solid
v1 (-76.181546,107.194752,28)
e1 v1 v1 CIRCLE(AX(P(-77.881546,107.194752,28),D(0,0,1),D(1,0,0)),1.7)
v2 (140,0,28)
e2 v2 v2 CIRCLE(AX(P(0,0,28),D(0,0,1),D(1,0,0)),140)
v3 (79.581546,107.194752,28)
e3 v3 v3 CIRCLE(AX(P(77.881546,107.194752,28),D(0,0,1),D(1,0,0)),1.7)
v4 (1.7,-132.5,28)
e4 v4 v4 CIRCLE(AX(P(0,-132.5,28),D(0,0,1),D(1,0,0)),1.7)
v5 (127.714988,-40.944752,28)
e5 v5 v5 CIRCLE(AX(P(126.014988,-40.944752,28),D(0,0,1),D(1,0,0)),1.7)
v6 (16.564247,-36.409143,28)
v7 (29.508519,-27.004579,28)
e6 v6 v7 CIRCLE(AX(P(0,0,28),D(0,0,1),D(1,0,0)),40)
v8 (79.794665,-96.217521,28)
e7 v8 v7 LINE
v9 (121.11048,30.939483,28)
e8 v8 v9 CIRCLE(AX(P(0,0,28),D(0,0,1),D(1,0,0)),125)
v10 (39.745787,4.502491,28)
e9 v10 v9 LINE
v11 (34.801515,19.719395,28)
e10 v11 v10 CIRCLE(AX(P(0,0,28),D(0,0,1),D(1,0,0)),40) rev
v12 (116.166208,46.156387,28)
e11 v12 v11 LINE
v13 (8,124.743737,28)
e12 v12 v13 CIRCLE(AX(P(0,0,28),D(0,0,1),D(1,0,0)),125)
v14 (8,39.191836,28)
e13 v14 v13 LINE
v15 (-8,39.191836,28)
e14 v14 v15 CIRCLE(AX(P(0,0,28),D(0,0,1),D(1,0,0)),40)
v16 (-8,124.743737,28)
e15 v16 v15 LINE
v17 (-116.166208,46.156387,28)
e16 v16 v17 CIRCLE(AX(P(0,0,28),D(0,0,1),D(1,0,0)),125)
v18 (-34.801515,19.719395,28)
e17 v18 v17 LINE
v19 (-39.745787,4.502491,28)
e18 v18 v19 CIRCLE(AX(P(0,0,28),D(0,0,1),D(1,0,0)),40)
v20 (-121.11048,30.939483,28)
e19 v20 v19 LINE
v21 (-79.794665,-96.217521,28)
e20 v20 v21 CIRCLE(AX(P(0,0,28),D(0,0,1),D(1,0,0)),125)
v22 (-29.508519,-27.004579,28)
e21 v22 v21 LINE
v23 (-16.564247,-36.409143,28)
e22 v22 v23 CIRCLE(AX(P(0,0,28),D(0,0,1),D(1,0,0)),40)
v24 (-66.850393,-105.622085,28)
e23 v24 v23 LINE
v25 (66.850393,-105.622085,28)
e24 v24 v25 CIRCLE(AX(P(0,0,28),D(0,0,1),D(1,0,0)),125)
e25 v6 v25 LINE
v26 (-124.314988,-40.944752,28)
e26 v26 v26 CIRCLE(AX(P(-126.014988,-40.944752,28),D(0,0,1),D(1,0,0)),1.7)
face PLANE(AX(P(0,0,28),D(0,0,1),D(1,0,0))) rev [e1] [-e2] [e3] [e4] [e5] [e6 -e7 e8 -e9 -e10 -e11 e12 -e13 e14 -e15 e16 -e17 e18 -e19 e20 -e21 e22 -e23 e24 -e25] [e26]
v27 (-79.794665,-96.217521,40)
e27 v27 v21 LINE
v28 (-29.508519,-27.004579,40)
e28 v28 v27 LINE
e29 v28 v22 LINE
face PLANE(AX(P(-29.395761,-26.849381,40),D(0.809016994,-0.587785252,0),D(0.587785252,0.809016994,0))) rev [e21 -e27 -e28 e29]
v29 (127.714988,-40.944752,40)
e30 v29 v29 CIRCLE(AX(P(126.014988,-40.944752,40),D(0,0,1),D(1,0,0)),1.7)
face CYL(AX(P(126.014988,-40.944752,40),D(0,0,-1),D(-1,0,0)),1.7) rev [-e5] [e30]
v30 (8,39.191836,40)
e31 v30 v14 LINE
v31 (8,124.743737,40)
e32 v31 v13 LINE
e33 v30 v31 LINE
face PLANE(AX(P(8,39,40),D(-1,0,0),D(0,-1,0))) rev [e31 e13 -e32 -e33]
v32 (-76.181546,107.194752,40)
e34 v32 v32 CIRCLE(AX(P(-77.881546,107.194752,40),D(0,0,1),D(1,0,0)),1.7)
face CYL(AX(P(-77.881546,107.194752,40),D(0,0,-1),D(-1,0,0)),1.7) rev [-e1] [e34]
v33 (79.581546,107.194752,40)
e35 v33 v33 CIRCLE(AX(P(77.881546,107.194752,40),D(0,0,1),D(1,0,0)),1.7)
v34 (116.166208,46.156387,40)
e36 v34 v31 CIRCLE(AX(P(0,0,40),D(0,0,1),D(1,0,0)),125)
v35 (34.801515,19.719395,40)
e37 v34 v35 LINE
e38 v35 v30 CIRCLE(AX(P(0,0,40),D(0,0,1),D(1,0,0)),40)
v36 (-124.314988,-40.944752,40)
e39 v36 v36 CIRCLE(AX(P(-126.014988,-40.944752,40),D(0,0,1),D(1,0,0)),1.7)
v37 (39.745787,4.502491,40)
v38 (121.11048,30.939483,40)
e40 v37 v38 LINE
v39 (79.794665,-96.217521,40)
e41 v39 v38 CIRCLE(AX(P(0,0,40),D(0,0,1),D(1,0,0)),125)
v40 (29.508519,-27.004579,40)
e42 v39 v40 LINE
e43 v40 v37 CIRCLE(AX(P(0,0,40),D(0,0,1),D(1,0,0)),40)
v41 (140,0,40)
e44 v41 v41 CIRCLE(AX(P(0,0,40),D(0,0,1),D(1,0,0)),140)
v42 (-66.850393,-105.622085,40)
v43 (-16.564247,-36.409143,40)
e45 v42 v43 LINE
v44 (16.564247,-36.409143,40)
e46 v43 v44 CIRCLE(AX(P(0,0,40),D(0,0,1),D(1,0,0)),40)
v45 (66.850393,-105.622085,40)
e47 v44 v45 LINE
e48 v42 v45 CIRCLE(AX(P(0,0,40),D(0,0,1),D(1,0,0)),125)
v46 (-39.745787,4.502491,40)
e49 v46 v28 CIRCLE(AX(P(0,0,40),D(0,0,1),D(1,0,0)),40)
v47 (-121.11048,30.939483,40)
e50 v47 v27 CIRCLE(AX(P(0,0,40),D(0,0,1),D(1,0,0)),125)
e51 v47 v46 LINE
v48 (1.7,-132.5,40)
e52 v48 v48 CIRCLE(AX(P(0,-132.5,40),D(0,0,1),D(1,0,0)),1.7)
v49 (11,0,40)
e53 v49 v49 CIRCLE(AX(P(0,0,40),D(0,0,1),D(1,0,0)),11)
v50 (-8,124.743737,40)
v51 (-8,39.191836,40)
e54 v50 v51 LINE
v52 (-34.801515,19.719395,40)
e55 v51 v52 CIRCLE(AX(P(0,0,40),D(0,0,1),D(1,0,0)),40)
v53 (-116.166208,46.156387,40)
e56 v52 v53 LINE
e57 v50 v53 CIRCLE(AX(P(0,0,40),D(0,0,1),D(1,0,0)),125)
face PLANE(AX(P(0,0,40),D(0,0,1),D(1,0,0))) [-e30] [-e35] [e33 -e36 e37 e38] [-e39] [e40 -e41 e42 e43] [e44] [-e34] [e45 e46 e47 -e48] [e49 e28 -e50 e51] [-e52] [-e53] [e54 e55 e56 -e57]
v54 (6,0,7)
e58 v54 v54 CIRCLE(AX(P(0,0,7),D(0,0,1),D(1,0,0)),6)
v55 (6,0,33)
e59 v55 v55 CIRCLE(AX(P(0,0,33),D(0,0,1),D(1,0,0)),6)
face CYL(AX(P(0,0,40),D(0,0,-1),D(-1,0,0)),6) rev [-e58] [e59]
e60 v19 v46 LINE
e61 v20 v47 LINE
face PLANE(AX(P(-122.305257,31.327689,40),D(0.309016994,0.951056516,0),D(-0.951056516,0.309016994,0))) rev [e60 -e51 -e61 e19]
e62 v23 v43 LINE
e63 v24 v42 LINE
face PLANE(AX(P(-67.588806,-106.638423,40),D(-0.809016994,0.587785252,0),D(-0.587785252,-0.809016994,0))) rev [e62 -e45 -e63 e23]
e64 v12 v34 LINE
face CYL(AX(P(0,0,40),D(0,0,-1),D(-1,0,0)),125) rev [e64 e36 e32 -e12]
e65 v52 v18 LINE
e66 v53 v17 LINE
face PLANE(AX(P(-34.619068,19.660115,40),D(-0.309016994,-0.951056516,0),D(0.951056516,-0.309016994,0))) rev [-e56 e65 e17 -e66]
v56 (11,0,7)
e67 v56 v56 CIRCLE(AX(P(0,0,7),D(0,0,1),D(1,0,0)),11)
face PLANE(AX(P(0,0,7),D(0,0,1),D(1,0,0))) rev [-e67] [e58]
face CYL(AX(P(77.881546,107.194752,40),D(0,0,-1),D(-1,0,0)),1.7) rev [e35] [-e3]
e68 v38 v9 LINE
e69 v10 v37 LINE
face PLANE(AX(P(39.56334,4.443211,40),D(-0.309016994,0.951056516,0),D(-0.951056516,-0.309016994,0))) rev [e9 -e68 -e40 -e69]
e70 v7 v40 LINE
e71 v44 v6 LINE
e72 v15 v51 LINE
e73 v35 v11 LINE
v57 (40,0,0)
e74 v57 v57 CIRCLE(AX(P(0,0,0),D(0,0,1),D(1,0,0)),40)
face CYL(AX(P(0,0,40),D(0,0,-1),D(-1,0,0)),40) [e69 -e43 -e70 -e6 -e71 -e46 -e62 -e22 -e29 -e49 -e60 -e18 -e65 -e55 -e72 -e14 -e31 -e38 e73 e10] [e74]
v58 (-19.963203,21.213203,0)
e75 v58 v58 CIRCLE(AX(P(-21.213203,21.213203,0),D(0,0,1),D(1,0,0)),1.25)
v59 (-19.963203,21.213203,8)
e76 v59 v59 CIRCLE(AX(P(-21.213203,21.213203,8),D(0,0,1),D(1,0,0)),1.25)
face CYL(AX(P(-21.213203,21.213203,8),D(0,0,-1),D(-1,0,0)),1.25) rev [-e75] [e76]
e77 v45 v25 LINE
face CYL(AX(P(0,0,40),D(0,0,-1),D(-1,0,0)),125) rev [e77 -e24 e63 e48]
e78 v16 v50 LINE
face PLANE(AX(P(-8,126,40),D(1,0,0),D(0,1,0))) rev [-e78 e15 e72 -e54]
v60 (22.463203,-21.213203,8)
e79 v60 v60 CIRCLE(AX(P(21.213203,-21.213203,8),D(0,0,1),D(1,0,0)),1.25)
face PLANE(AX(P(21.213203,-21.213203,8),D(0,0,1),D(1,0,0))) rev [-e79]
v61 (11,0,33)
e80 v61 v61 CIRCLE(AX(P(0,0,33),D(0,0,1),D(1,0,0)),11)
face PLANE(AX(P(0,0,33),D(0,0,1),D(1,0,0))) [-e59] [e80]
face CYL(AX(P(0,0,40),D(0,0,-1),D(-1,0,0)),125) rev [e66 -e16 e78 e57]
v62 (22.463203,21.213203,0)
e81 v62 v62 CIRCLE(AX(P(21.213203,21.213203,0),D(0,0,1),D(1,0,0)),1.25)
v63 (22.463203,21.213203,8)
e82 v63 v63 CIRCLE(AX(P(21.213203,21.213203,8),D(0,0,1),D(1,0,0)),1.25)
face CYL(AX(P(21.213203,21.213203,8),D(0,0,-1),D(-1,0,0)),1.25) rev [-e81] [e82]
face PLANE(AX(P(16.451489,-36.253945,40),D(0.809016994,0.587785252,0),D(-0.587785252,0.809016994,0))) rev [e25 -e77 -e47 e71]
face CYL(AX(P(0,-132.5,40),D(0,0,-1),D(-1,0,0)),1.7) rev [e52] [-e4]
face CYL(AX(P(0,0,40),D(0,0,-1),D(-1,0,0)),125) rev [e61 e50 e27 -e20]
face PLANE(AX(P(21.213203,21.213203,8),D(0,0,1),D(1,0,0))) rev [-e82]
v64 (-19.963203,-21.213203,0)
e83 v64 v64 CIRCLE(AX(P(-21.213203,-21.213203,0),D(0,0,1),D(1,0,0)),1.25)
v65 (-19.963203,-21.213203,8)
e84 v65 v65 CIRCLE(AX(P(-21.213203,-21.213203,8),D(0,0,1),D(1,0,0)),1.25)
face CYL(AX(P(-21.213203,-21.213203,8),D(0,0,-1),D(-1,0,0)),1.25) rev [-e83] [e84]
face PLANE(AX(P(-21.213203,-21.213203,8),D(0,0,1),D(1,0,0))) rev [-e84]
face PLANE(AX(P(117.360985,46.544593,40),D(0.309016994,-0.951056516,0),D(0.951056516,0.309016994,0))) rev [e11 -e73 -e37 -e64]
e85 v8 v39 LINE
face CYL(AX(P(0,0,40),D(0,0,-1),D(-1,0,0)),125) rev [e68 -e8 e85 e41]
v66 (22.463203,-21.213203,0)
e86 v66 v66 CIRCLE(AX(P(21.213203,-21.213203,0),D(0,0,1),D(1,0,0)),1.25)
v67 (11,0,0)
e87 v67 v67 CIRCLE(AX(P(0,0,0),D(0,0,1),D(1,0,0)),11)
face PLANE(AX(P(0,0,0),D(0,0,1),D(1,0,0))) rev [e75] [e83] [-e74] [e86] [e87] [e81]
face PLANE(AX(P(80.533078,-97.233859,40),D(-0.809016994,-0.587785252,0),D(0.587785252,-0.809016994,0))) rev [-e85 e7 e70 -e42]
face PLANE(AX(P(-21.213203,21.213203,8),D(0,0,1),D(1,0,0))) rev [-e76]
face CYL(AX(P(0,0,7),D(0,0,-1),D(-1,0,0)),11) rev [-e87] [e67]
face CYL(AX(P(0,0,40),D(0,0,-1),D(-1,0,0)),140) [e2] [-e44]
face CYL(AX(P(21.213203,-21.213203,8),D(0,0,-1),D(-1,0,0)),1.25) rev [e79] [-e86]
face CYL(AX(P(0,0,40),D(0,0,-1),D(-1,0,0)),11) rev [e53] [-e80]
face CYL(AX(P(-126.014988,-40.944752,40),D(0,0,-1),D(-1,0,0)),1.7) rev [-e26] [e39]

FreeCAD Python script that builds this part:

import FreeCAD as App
import Part
import Sketcher
Q = App.Units.Quantity


def add_polygon(sketch, points):
    """Adds a closed chain of lines whose ends are joined by coincident constraints."""
    first, n = sketch.GeometryCount, len(points)
    for a, b in zip(points, points[1:] + points[:1]):
        sketch.addGeometry(Part.LineSegment(App.Vector(*a, 0), App.Vector(*b, 0)), False)
    for i in range(n):
        sketch.addConstraint(Sketcher.Constraint("Coincident", first + i, 2, first + (i + 1) % n, 1))

doc = App.newDocument("Part")
body = doc.addObject("PartDesign::Body", "Body")

# Sketch on XY plane
sketch1 = body.newObject("Sketcher::SketchObject", "Sketch")
sketch1.AttachmentSupport = (doc.getObject("XY_Plane"), [""])
sketch1.MapMode = "FlatFace"
sketch1.AttachmentOffset = App.Placement(App.Vector(0, 0, 28), App.Rotation())
sketch1.addGeometry([
    Part.Circle(App.Vector(0, 0, 0), App.Vector(0, 0, 1), 140),
    Part.Circle(App.Vector(0, 0, 0), App.Vector(0, 0, 1), 125),
], False)
sketch1.addConstraint([
    Sketcher.Constraint("Coincident", 0, 3, -1, 1),
    Sketcher.Constraint("Coincident", 1, 3, -1, 1),
    Sketcher.Constraint("Diameter", 0, 280.0),
    Sketcher.Constraint("Diameter", 1, 250.0),
])
pad1 = body.newObject("PartDesign::Pad", "Pad")
pad1.Profile = sketch1
pad1.Length = 12
body2 = doc.addObject("PartDesign::Body", "Body001")

# Sketch on XY plane
sketch2 = body2.newObject("Sketcher::SketchObject", "Sketch001")
sketch2.AttachmentSupport = (doc.getObject("XY_Plane001"), [""])
sketch2.MapMode = "FlatFace"
sketch2.addGeometry(Part.Circle(App.Vector(0, 0, 0), App.Vector(0, 0, 1), 40), False)
sketch2.addConstraint([
    Sketcher.Constraint("Coincident", 0, 3, -1, 1),
    Sketcher.Constraint("Diameter", 0, 80.0),
])
pad2 = body2.newObject("PartDesign::Pad", "Pad001")
pad2.Profile = sketch2
pad2.Length = 40
body.AllowCompound = True
doc.recompute()

boolean = body.newObject("PartDesign::Boolean", "Boolean")
boolean.Type = "Fuse"
boolean.addObjects([body2])

# Sketch on XY plane
sketch3 = body.newObject("Sketcher::SketchObject", "Sketch002")
sketch3.AttachmentSupport = (doc.getObject("XY_Plane"), [""])
sketch3.MapMode = "FlatFace"
sketch3.AttachmentOffset = App.Placement(App.Vector(0, 0, 28), App.Rotation())
add_polygon(sketch3, [(40, 4), (122, 31), (117, 47), (35, 20)])  # lines 0-3
add_polygon(sketch3, [(-8, 126), (-8, 39), (8, 39), (8, 126)])  # lines 4-7
add_polygon(sketch3, [(-35, 20), (-117, 47), (-122, 31), (-40, 4)])  # lines 8-11
add_polygon(sketch3, [(-29, -27), (-81, -97), (-68, -107), (-16, -36)])  # lines 12-15
add_polygon(sketch3, [(16, -36), (68, -107), (81, -97), (29, -27)])  # lines 16-19
sketch3.addConstraint([
    Sketcher.Constraint("Vertical", 4),
    Sketcher.Constraint("Horizontal", 5),
    Sketcher.Constraint("Vertical", 6),
    Sketcher.Constraint("Horizontal", 7),
    Sketcher.Constraint("Symmetric", 1, 2, 8, 2, -2),
    Sketcher.Constraint("Symmetric", 0, 2, 9, 2, -2),
    Sketcher.Constraint("Symmetric", 3, 2, 10, 2, -2),
    Sketcher.Constraint("Symmetric", 2, 2, 11, 2, -2),
    Sketcher.Constraint("Symmetric", 13, 2, 16, 2, -2),
    Sketcher.Constraint("Symmetric", 12, 2, 17, 2, -2),
    Sketcher.Constraint("Symmetric", 15, 2, 18, 2, -2),
    Sketcher.Constraint("Symmetric", 14, 2, 19, 2, -2),
    Sketcher.Constraint("Perpendicular", 0, 1),
    Sketcher.Constraint("Perpendicular", 1, 2),
    Sketcher.Constraint("Perpendicular", 2, 3),
    Sketcher.Constraint("Perpendicular", 12, 13),
    Sketcher.Constraint("Perpendicular", 13, 14),
    Sketcher.Constraint("Perpendicular", 14, 15),
    Sketcher.Constraint("Equal", 10, 12),
    Sketcher.Constraint("Equal", 11, 13),
    Sketcher.Constraint("DistanceX", 5, 1, 5, 2, 16.0),
    Sketcher.Constraint("DistanceY", 4, 2, 4, 1, 87.0),
    Sketcher.Constraint("Angle", 0, Q("18 deg")),
    Sketcher.Constraint("Angle", 12, Q("-126 deg")),
    Sketcher.Constraint("Distance", 0, 87.0),
    Sketcher.Constraint("Distance", 1, 16.0),
    Sketcher.Constraint("DistanceX", 4, 2, -1, 1, 8.0),
    Sketcher.Constraint("DistanceY", -1, 1, 4, 2, 39.0),
    Sketcher.Constraint("DistanceY", -1, 1, 0, 2, 31.327689),
    Sketcher.Constraint("DistanceX", -1, 1, 2, 2, 34.619068),
    Sketcher.Constraint("DistanceY", 12, 2, -1, 1, 97.233859),
    Sketcher.Constraint("DistanceX", 14, 2, -1, 1, 16.451489),
])
pad3 = body.newObject("PartDesign::Pad", "Pad002")
pad3.Profile = sketch3
pad3.Length = 12

# Sketch on XY plane
sketch4 = body.newObject("Sketcher::SketchObject", "Sketch003")
sketch4.AttachmentSupport = (doc.getObject("XY_Plane"), [""])
sketch4.MapMode = "FlatFace"
sketch4.addGeometry(Part.Circle(App.Vector(0, 0, 0), App.Vector(0, 0, 1), 6), False)
sketch4.addConstraint([
    Sketcher.Constraint("Coincident", 0, 3, -1, 1),
    Sketcher.Constraint("Diameter", 0, 12.0),
])
pocket1 = body.newObject("PartDesign::Pocket", "Pocket")
pocket1.Profile = sketch4
pocket1.Length = 40
pocket1.Reversed = True

# Sketch on XY plane
sketch5 = body.newObject("Sketcher::SketchObject", "Sketch004")
sketch5.AttachmentSupport = (doc.getObject("XY_Plane"), [""])
sketch5.MapMode = "FlatFace"
sketch5.addGeometry(Part.Circle(App.Vector(0, 0, 0), App.Vector(0, 0, 1), 11), False)
sketch5.addConstraint([
    Sketcher.Constraint("Coincident", 0, 3, -1, 1),
    Sketcher.Constraint("Diameter", 0, 22.0),
])
pocket2 = body.newObject("PartDesign::Pocket", "Pocket001")
pocket2.Profile = sketch5
pocket2.Length = 7
pocket2.Reversed = True

# Sketch on XY plane
sketch6 = body.newObject("Sketcher::SketchObject", "Sketch005")
sketch6.AttachmentSupport = (doc.getObject("XY_Plane"), [""])
sketch6.MapMode = "FlatFace"
sketch6.AttachmentOffset = App.Placement(App.Vector(0, 0, 33), App.Rotation())
sketch6.addGeometry(Part.Circle(App.Vector(0, 0, 0), App.Vector(0, 0, 1), 11), False)
sketch6.addConstraint([
    Sketcher.Constraint("Coincident", 0, 3, -1, 1),
    Sketcher.Constraint("Diameter", 0, 22.0),
])
pocket3 = body.newObject("PartDesign::Pocket", "Pocket002")
pocket3.Profile = sketch6
pocket3.Length = 7
pocket3.Reversed = True

# Sketch on XY plane
sketch7 = body.newObject("Sketcher::SketchObject", "Sketch006")
sketch7.AttachmentSupport = (doc.getObject("XY_Plane"), [""])
sketch7.MapMode = "FlatFace"
sketch7.AttachmentOffset = App.Placement(App.Vector(0, 0, 28), App.Rotation())
sketch7.addGeometry([
    Part.Circle(App.Vector(77.9, 107.2, 0), App.Vector(0, 0, 1), 1.7),  # 0
    Part.Circle(App.Vector(-77.9, 107.2, 0), App.Vector(0, 0, 1), 1.7),  # 1
    Part.Circle(App.Vector(-126, -40.9, 0), App.Vector(0, 0, 1), 1.7),  # 2
    Part.Circle(App.Vector(0, -132.5, 0), App.Vector(0, 0, 1), 1.7),  # 3
    Part.Circle(App.Vector(126, -40.9, 0), App.Vector(0, 0, 1), 1.7),  # 4
], False)
sketch7.addConstraint([
    Sketcher.Constraint("Equal", 0, 1),
    Sketcher.Constraint("Equal", 1, 2),
    Sketcher.Constraint("Equal", 2, 3),
    Sketcher.Constraint("Equal", 3, 4),
    Sketcher.Constraint("Symmetric", 0, 3, 1, 3, -2),
    Sketcher.Constraint("Symmetric", 2, 3, 4, 3, -2),
    Sketcher.Constraint("PointOnObject", 3, 3, -2),
    Sketcher.Constraint("Diameter", 0, 3.4),
    Sketcher.Constraint("DistanceY", 3, 3, -1, 1, 132.5),
    Sketcher.Constraint("DistanceY", -1, 1, 0, 3, 107.194752),
    Sketcher.Constraint("DistanceX", 2, 3, -1, 1, 126.014988),
    Sketcher.Constraint("DistanceY", 2, 3, -1, 1, 40.944752),
    Sketcher.Constraint("DistanceX", 1, 3, 0, 3, 155.763092),
])
pocket4 = body.newObject("PartDesign::Pocket", "Pocket003")
pocket4.Profile = sketch7
pocket4.Length = 12
pocket4.Reversed = True

# Sketch on XY plane
sketch8 = body.newObject("Sketcher::SketchObject", "Sketch007")
sketch8.AttachmentSupport = (doc.getObject("XY_Plane"), [""])
sketch8.MapMode = "FlatFace"
sketch8.addGeometry([
    Part.Circle(App.Vector(21.2, 21.2, 0), App.Vector(0, 0, 1), 1.2),
    Part.Circle(App.Vector(-21.2, 21.2, 0), App.Vector(0, 0, 1), 1.2),
    Part.Circle(App.Vector(-21.2, -21.2, 0), App.Vector(0, 0, 1), 1.2),
    Part.Circle(App.Vector(21.2, -21.2, 0), App.Vector(0, 0, 1), 1.2),
], False)
sketch8.addConstraint([
    Sketcher.Constraint("Equal", 0, 1),
    Sketcher.Constraint("Equal", 1, 2),
    Sketcher.Constraint("Equal", 2, 3),
    Sketcher.Constraint("Symmetric", 0, 3, 2, 3, -1, 1),
    Sketcher.Constraint("Symmetric", 1, 3, 3, 3, -1, 1),
    Sketcher.Constraint("Symmetric", 0, 3, 1, 3, -2),
    Sketcher.Constraint("Diameter", 0, 2.5),
    Sketcher.Constraint("DistanceX", -1, 1, 0, 3, 21.213203),
    Sketcher.Constraint("DistanceY", -1, 1, 0, 3, 21.213203),
])
pocket5 = body.newObject("PartDesign::Pocket", "Pocket004")
pocket5.Profile = sketch8
pocket5.Length = 8
pocket5.Reversed = True

doc.recompute()
